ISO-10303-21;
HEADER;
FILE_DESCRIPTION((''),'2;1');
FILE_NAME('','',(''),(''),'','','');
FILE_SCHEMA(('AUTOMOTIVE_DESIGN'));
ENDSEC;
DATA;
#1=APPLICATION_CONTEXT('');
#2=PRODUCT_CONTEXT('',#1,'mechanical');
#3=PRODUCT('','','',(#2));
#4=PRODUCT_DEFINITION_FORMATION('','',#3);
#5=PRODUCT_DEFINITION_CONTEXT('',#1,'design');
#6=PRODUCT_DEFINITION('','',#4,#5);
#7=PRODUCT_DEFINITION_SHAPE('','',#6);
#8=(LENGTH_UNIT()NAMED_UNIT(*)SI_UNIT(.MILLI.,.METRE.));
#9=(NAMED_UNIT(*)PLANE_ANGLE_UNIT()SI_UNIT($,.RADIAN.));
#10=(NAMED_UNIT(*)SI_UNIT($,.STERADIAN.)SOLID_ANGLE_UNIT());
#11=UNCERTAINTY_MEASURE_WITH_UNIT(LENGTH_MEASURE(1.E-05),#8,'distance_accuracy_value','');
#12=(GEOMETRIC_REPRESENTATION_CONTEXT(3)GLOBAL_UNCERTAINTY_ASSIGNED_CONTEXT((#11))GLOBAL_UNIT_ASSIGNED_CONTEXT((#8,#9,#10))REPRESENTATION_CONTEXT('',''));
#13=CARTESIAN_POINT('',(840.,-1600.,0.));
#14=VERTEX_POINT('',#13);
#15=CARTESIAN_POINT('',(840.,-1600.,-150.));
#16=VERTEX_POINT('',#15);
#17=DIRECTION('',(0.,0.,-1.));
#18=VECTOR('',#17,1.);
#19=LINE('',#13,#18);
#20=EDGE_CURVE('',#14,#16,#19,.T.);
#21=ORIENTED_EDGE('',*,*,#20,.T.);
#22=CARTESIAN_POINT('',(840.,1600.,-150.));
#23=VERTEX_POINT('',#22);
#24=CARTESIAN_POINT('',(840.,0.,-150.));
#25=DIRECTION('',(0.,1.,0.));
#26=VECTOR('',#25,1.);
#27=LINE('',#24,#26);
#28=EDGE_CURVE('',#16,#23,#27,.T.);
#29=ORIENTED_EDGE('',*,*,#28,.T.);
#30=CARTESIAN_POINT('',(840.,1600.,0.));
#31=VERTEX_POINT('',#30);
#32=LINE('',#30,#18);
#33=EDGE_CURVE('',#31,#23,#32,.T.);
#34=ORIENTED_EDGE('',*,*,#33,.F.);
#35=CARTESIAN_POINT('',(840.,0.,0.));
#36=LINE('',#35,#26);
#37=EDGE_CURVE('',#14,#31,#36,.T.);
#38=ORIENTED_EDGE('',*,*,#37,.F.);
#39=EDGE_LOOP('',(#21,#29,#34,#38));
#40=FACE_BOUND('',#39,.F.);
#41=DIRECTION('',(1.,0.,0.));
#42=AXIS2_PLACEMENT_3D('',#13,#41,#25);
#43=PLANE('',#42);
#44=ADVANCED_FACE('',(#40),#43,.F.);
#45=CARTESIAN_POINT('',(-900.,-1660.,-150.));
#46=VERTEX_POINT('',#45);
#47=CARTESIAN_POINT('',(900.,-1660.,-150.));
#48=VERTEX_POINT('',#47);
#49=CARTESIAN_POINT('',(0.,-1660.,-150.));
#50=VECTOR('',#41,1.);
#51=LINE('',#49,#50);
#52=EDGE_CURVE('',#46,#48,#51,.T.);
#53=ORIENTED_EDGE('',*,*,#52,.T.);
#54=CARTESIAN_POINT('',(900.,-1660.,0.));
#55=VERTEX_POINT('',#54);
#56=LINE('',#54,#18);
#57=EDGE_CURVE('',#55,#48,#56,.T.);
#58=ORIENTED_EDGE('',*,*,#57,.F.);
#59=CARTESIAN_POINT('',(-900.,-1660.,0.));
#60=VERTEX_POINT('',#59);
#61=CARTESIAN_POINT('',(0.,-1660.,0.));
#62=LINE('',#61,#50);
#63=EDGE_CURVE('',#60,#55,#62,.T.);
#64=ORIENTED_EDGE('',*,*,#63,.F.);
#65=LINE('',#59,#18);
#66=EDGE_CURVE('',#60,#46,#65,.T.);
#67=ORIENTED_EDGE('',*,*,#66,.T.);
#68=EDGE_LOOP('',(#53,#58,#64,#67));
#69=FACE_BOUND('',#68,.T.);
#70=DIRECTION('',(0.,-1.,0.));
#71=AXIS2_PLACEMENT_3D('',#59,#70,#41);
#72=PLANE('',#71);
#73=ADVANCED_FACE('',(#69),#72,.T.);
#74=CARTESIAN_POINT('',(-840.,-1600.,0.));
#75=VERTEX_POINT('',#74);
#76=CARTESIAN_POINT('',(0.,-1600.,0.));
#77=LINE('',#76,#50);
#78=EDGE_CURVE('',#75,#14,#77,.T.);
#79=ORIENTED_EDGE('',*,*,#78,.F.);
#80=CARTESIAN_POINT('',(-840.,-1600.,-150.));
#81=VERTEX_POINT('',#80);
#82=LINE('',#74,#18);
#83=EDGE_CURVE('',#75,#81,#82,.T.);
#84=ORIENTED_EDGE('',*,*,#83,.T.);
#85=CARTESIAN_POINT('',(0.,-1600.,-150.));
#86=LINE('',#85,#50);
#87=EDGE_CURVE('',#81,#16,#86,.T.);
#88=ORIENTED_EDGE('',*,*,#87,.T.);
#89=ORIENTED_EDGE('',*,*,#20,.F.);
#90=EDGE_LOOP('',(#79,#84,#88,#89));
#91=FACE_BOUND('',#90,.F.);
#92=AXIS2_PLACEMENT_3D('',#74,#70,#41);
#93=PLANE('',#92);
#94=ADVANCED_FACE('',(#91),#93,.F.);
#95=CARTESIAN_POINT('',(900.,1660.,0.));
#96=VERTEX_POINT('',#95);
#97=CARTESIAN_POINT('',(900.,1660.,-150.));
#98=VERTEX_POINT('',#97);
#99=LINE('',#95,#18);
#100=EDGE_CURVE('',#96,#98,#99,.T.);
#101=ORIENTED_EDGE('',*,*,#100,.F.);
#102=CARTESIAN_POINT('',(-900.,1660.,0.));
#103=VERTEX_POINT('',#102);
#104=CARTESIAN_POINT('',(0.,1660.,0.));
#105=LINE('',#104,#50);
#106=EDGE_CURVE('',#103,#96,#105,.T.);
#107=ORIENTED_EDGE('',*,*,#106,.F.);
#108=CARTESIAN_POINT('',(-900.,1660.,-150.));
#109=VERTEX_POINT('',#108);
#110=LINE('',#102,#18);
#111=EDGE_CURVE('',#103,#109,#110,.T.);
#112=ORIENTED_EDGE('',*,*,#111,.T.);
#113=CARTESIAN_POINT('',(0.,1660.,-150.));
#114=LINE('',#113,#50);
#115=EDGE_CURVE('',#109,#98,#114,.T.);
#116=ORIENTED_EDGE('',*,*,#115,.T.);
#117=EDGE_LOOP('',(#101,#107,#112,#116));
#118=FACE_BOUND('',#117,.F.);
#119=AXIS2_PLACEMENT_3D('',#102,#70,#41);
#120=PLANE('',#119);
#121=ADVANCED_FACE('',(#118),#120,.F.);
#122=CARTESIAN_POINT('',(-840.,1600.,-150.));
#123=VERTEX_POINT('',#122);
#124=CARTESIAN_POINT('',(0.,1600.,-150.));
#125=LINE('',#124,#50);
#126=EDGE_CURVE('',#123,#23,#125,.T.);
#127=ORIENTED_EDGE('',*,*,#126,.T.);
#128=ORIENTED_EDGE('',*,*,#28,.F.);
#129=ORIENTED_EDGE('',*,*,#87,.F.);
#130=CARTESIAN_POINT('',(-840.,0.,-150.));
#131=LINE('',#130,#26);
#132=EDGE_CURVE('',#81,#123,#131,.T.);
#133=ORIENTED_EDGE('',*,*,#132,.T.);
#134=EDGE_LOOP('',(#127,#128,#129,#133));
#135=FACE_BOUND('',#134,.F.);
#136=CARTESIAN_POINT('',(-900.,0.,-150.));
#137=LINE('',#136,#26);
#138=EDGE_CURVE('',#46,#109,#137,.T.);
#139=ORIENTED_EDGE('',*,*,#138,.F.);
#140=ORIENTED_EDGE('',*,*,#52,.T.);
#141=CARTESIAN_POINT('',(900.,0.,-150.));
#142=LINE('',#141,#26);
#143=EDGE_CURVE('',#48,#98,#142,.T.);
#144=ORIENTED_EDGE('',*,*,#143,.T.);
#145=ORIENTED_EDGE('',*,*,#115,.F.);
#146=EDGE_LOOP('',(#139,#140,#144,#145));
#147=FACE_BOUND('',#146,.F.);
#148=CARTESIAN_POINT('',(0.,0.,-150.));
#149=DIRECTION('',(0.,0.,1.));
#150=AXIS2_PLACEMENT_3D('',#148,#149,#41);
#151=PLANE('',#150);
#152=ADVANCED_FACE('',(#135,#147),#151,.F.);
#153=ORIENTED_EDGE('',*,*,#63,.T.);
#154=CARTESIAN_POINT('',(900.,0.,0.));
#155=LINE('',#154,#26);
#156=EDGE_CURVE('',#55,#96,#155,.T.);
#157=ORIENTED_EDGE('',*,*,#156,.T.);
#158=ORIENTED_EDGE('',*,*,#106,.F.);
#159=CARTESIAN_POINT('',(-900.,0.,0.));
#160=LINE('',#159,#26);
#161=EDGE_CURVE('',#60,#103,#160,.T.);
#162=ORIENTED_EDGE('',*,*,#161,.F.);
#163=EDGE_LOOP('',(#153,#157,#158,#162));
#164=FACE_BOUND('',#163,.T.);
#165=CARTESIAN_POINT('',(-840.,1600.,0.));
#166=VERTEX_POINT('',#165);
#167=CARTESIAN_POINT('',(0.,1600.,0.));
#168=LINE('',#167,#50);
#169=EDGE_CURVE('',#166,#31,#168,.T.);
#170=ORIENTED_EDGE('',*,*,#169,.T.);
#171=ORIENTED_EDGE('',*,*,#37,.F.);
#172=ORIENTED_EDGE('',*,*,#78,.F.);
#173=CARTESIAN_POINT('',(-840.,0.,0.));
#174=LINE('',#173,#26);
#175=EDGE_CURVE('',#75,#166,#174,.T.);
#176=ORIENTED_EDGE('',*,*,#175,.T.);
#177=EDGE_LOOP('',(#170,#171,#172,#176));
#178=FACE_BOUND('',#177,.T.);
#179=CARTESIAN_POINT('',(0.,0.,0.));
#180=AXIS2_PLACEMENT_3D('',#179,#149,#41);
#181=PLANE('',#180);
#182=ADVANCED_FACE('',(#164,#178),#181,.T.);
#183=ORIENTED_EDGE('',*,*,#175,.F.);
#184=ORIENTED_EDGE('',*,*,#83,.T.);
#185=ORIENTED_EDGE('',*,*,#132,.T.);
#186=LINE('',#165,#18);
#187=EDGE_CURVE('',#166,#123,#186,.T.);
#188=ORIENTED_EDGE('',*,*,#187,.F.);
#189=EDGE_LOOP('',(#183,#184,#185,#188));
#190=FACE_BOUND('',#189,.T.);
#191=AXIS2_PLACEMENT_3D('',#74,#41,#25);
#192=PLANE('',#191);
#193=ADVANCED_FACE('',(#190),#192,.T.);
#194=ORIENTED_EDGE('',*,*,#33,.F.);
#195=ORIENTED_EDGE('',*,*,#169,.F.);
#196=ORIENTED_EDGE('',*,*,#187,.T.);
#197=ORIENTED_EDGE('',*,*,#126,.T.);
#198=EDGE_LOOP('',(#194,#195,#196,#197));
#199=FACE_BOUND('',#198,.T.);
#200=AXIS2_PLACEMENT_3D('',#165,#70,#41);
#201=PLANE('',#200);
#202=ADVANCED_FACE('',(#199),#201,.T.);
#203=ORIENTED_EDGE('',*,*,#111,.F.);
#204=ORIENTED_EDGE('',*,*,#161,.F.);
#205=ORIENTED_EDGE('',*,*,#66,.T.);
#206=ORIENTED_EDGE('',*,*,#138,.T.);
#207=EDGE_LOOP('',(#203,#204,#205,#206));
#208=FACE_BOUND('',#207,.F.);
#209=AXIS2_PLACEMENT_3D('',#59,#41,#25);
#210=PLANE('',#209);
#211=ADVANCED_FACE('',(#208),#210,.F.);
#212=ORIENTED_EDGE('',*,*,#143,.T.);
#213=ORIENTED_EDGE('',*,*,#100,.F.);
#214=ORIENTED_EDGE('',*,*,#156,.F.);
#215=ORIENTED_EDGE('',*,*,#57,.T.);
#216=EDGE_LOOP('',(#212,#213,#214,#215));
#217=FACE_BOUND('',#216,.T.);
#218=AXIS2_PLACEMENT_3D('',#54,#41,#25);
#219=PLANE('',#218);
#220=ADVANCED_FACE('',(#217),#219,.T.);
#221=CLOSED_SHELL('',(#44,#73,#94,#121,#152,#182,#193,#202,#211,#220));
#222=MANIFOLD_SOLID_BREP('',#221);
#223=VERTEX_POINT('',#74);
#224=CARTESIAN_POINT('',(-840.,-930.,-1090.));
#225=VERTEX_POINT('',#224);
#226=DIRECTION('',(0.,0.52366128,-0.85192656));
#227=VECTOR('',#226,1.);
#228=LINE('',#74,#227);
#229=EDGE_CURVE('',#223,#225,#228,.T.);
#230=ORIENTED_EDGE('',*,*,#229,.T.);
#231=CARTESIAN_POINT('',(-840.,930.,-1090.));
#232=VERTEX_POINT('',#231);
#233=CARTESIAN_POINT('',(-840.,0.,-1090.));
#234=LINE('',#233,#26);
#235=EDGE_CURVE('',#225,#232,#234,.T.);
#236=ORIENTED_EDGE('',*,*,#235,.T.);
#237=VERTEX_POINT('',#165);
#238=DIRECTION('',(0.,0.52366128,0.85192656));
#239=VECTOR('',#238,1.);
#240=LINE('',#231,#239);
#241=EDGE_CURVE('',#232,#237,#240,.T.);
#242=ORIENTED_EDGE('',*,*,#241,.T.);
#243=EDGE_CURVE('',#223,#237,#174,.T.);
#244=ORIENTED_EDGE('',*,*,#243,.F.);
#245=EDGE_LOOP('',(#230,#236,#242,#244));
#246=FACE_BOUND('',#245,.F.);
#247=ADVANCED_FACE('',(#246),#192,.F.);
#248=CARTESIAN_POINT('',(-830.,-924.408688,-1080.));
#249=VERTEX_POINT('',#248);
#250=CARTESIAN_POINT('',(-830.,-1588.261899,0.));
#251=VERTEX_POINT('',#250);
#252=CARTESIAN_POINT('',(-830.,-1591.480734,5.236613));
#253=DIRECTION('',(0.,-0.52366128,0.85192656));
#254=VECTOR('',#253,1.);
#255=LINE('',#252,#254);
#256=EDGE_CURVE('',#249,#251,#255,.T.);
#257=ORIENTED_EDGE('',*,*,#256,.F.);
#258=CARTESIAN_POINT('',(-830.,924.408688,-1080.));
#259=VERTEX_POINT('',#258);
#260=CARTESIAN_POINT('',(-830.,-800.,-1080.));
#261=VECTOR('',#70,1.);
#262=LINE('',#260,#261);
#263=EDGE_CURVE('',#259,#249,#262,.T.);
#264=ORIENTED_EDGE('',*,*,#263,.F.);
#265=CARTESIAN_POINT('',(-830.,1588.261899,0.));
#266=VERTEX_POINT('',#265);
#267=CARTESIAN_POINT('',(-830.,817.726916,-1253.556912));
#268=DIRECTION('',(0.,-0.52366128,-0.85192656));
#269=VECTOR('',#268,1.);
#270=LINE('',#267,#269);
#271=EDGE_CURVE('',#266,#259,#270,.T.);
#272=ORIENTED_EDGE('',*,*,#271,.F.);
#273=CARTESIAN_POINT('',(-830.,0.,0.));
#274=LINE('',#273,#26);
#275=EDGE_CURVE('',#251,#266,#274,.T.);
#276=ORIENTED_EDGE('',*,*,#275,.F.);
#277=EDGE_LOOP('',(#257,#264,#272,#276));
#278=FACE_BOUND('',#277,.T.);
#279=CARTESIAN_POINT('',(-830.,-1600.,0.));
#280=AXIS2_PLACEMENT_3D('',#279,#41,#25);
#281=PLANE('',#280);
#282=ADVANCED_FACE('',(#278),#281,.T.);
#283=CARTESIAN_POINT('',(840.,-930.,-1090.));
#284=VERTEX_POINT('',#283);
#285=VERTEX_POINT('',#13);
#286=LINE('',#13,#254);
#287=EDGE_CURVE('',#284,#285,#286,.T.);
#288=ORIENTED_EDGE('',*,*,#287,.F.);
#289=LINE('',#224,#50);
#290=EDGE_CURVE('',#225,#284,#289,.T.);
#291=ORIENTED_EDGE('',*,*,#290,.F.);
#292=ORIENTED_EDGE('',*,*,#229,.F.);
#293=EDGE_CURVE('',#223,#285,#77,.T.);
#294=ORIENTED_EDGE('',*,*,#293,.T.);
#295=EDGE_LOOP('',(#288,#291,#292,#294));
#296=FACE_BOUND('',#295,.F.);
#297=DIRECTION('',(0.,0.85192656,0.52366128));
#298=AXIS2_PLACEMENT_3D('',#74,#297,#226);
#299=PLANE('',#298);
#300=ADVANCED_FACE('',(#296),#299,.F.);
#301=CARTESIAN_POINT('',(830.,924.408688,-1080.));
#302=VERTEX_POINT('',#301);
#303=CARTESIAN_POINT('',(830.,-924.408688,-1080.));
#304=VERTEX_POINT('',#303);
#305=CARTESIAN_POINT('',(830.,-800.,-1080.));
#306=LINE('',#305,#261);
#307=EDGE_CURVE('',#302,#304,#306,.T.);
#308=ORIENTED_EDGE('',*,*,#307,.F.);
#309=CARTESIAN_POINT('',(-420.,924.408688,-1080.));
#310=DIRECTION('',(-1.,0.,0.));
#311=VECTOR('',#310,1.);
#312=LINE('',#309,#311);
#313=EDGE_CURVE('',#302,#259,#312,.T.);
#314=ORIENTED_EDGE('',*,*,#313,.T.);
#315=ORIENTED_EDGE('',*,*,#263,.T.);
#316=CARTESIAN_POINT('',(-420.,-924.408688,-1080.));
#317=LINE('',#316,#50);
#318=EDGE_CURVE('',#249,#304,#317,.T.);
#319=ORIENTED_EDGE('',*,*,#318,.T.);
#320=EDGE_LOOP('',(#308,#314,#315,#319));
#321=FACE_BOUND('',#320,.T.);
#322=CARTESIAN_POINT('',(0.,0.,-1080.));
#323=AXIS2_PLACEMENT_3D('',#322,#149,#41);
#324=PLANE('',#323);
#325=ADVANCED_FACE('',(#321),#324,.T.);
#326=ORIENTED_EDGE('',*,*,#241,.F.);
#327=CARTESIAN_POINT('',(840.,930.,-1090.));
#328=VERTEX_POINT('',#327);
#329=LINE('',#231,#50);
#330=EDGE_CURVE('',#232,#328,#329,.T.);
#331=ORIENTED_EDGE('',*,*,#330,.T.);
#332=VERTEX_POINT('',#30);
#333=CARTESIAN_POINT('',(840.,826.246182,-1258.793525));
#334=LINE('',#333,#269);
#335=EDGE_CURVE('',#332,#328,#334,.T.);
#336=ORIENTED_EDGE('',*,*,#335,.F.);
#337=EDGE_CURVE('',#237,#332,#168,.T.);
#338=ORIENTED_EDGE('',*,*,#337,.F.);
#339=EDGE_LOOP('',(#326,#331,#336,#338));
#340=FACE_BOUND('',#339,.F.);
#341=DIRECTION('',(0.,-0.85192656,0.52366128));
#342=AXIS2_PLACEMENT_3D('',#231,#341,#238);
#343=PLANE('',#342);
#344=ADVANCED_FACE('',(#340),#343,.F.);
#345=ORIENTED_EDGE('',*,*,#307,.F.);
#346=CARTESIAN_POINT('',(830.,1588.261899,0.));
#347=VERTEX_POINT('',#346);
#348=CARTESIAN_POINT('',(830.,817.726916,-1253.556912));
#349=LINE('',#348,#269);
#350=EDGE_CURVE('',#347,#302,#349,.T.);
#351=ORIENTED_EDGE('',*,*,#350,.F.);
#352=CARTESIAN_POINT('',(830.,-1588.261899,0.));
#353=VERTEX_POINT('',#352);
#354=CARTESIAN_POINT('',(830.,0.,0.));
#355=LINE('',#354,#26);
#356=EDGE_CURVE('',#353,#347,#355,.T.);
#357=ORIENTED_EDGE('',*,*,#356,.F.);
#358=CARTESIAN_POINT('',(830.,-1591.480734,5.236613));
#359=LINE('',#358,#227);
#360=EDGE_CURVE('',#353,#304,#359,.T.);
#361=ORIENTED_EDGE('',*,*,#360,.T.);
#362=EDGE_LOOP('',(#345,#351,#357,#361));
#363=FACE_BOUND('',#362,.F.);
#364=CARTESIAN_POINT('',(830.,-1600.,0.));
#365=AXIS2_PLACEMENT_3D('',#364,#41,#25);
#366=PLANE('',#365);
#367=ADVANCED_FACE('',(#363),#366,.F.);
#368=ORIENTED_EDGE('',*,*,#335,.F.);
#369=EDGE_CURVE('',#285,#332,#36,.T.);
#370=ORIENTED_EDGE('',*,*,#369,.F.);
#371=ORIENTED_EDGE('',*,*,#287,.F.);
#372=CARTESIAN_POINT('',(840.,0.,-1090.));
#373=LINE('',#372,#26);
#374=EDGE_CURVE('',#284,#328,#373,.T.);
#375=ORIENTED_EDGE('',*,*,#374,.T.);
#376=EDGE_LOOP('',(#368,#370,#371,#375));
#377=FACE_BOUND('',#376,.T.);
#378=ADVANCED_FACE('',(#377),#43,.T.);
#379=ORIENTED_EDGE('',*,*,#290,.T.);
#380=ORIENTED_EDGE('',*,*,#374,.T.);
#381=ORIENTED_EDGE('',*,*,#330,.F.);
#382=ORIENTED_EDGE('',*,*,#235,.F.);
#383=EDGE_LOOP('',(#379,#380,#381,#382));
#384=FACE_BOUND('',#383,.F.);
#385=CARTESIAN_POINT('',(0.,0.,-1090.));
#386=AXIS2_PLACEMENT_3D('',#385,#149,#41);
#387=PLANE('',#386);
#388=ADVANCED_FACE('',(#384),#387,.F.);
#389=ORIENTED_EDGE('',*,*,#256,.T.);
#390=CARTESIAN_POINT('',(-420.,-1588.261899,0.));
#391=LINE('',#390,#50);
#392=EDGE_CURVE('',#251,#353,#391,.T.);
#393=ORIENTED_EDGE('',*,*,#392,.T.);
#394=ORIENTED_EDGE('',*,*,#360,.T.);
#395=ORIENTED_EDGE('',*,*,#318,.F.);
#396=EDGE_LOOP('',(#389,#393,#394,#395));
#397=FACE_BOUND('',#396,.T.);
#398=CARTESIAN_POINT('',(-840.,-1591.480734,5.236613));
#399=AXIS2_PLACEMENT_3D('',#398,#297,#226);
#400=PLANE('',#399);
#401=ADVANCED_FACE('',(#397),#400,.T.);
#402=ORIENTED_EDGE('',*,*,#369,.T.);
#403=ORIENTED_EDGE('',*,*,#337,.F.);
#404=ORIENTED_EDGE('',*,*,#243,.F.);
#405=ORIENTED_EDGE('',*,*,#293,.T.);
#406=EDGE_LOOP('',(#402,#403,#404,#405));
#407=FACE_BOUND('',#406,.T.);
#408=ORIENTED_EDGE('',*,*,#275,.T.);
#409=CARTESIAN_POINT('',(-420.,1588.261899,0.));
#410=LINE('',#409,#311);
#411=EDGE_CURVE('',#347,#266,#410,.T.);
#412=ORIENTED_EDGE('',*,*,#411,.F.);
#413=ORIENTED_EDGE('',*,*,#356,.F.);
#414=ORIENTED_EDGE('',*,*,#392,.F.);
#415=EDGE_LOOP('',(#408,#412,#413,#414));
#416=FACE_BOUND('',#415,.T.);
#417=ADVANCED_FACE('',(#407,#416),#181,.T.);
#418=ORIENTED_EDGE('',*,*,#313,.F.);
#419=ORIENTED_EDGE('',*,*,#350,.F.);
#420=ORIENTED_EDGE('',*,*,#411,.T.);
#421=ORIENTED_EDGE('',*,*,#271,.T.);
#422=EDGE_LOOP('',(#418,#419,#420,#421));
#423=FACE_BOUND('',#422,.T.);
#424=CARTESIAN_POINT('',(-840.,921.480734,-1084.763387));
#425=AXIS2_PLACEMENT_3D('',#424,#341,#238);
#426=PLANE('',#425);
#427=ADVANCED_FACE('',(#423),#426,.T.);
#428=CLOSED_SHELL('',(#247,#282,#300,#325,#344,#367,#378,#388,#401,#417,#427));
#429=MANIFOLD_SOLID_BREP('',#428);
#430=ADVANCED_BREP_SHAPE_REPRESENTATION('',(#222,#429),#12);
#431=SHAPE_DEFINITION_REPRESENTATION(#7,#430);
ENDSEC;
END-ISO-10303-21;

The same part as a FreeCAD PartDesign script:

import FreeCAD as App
import Part
import Sketcher
from FreeCAD import Vector


def faces_at(feature, points):
    """Names of the faces that lie closest to the given points."""
    faces = feature.Shape.Faces
    near = lambda p: min(range(len(faces)), key=lambda i: faces[i].distToShape(Part.Vertex(*p))[0])
    return sorted({f"Face{near(p) + 1}" for p in points})


def add_polygon(sketch, points):
    """Adds a closed chain of lines whose ends are joined by coincident constraints."""
    first, n = sketch.GeometryCount, len(points)
    for a, b in zip(points, points[1:] + points[:1]):
        sketch.addGeometry(Part.LineSegment(App.Vector(*a, 0), App.Vector(*b, 0)), False)
    for i in range(n):
        sketch.addConstraint(Sketcher.Constraint("Coincident", first + i, 2, first + (i + 1) % n, 1))

doc = App.newDocument("Part")
body = doc.addObject("PartDesign::Body", "Body")

sketch1 = body.newObject("Sketcher::SketchObject", "Sketch")
sketch1.AttachmentSupport = (doc.getObject("XY_Plane"), [""])
sketch1.MapMode = "FlatFace"
add_polygon(sketch1, [(-840, 1600), (-840, -1600), (840, -1600), (840, 1600)])
sketch1.addConstraint(Sketcher.Constraint("Vertical", 0))
sketch1.addConstraint(Sketcher.Constraint("Horizontal", 1))
sketch1.addConstraint(Sketcher.Constraint("Vertical", 2))
sketch1.addConstraint(Sketcher.Constraint("Horizontal", 3))
sketch1.addConstraint(Sketcher.Constraint("Symmetric", 0, 2, 2, 2, -1, 1))
sketch1.addConstraint(Sketcher.Constraint("DistanceX", 1, 1, 1, 2, 1680.0))
sketch1.addConstraint(Sketcher.Constraint("DistanceY", 0, 2, 0, 1, 3200.0))
pad1 = body.newObject("PartDesign::Pad", "Pad")
pad1.Profile = sketch1
pad1.Length = 1090
pad1.Reversed = True

sketch2 = body.newObject("Sketcher::SketchObject", "Sketch001")
sketch2.AttachmentSupport = (doc.getObject("YZ_Plane"), [""])
sketch2.MapMode = "FlatFace"
sketch2.AttachmentOffset = App.Placement(Vector(0, 0, -840), App.Rotation())
add_polygon(sketch2, [(930, -1090), (1600, 0), (1600, -1090)])
add_polygon(sketch2, [(-1600, -1090), (-1600, 0), (-930, -1090)])
sketch2.addConstraint(Sketcher.Constraint("Vertical", 1))
sketch2.addConstraint(Sketcher.Constraint("Horizontal", 2))
sketch2.addConstraint(Sketcher.Constraint("Vertical", 3))
sketch2.addConstraint(Sketcher.Constraint("Horizontal", 5))
sketch2.addConstraint(Sketcher.Constraint("Symmetric", 0, 2, 3, 2, -1, 1))
sketch2.addConstraint(Sketcher.Constraint("Symmetric", 2, 2, 4, 2, -2))
sketch2.addConstraint(Sketcher.Constraint("PointOnObject", 0, 2, -1))
sketch2.addConstraint(Sketcher.Constraint("DistanceX", 2, 2, 2, 1, 670.0))
sketch2.addConstraint(Sketcher.Constraint("DistanceY", 1, 2, 1, 1, 1090.0))
sketch2.addConstraint(Sketcher.Constraint("DistanceX", -1, 1, 0, 2, 1600.0))
pocket1 = body.newObject("PartDesign::Pocket", "Pocket")
pocket1.Profile = sketch2
pocket1.Type = "ThroughAll"
pocket1.Reversed = True
doc.recompute()

thickness = body.newObject("PartDesign::Thickness", "Thickness")
thickness.Base = (pocket1, faces_at(pocket1, [(0, 0, 0)]))
thickness.Value = 10
thickness.Reversed = True
thickness.Join = "Arc"
body2 = doc.addObject("PartDesign::Body", "Body001")

sketch3 = body2.newObject("Sketcher::SketchObject", "Sketch002")
sketch3.AttachmentSupport = (doc.getObject("XY_Plane001"), [""])
sketch3.MapMode = "FlatFace"
add_polygon(sketch3, [(-900, 1660), (-900, -1660), (900, -1660), (900, 1660)])
add_polygon(sketch3, [(840, -1600), (-840, -1600), (-840, 1600), (840, 1600)])
sketch3.addConstraint(Sketcher.Constraint("Vertical", 0))
sketch3.addConstraint(Sketcher.Constraint("Horizontal", 1))
sketch3.addConstraint(Sketcher.Constraint("Vertical", 2))
sketch3.addConstraint(Sketcher.Constraint("Horizontal", 3))
sketch3.addConstraint(Sketcher.Constraint("Horizontal", 4))
sketch3.addConstraint(Sketcher.Constraint("Vertical", 5))
sketch3.addConstraint(Sketcher.Constraint("Horizontal", 6))
sketch3.addConstraint(Sketcher.Constraint("Vertical", 7))
sketch3.addConstraint(Sketcher.Constraint("Symmetric", 0, 2, 2, 2, -1, 1))
sketch3.addConstraint(Sketcher.Constraint("Symmetric", 4, 2, 6, 2, -1, 1))
sketch3.addConstraint(Sketcher.Constraint("DistanceX", 1, 1, 1, 2, 1800.0))
sketch3.addConstraint(Sketcher.Constraint("DistanceX", 4, 2, 4, 1, 1680.0))
sketch3.addConstraint(Sketcher.Constraint("DistanceY", 0, 2, 0, 1, 3320.0))
sketch3.addConstraint(Sketcher.Constraint("DistanceY", 5, 1, 5, 2, 3200.0))
pad2 = body2.newObject("PartDesign::Pad", "Pad001")
pad2.Profile = sketch3
pad2.Length = 150
pad2.Reversed = True

doc.recompute()
